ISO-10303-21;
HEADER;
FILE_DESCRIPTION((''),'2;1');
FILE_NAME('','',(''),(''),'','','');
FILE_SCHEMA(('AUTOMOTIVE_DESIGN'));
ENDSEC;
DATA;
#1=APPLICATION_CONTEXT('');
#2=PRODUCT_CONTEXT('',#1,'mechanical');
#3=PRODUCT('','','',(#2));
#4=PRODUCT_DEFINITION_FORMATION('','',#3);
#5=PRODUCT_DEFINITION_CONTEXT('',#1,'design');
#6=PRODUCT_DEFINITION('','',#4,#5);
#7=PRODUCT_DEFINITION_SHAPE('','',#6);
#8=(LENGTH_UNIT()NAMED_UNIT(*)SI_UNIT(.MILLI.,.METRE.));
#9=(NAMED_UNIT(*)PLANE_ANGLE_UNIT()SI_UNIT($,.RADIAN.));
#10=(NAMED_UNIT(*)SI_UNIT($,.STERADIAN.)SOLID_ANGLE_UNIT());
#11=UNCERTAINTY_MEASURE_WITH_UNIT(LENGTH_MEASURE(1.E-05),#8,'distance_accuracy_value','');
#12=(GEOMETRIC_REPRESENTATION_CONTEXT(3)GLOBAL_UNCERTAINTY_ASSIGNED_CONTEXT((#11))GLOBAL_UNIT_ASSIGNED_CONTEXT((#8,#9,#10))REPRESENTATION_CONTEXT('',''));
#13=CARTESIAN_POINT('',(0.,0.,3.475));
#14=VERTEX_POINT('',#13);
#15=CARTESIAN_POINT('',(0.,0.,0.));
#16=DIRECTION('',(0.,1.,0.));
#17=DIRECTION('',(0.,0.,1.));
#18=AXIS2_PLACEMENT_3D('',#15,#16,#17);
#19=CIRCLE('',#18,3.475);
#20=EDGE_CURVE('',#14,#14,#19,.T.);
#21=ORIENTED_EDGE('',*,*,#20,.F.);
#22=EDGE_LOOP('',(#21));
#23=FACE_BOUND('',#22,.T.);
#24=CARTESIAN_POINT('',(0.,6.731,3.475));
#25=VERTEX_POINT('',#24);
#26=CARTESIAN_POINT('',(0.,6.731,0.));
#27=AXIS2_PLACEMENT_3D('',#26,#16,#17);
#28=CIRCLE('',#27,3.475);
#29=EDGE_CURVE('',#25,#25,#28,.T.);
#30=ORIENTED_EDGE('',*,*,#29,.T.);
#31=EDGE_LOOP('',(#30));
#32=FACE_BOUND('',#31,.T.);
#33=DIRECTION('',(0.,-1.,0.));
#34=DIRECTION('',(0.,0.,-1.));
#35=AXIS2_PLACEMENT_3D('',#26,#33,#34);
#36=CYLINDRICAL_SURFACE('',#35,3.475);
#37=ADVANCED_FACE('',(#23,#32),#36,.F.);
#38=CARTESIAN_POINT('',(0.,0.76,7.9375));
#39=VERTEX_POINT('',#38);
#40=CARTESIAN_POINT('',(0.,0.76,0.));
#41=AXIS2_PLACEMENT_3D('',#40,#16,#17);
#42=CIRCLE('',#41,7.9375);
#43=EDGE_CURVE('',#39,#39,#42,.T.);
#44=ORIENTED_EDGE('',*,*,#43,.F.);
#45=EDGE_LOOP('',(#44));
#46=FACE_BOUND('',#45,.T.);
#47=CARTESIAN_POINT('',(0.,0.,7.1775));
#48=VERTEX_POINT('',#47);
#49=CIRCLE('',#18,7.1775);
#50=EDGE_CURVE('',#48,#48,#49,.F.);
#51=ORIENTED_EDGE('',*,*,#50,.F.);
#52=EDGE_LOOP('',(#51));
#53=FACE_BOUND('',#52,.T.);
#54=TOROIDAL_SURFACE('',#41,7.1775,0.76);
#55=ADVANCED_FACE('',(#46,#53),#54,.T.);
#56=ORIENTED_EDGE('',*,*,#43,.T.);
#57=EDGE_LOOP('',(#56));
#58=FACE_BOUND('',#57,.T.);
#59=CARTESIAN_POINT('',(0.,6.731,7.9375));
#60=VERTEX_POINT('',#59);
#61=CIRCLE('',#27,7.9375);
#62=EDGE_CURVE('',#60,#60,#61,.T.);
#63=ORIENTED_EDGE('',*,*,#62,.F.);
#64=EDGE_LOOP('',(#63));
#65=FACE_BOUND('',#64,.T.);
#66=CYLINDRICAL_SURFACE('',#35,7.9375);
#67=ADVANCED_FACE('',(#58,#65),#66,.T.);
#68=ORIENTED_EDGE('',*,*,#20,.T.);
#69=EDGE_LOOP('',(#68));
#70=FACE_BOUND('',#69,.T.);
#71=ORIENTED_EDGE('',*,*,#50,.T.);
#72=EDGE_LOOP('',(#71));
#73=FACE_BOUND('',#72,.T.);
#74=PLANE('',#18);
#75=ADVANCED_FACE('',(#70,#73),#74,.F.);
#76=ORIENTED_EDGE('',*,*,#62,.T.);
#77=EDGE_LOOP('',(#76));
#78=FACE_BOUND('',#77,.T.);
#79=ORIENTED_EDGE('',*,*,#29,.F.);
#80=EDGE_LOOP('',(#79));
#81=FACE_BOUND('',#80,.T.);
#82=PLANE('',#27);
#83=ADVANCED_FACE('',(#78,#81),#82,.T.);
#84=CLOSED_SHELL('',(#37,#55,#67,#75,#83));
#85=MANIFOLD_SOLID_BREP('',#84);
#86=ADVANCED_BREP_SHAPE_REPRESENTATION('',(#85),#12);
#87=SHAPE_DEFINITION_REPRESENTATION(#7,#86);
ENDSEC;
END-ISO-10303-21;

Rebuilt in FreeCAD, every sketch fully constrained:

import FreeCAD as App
import Part
import Sketcher
Q = App.Units.Quantity


def edges_at(feature, points):
    """Names of the edges that pass closest to the given points."""
    edges = feature.Shape.Edges
    near = lambda p: min(range(len(edges)), key=lambda i: edges[i].distToShape(Part.Vertex(*p))[0])
    return sorted({f"Edge{near(p) + 1}" for p in points})

doc = App.newDocument("Part")
body = doc.addObject("PartDesign::Body", "Body")

sketch1 = body.newObject("Sketcher::SketchObject", "Sketch")
sketch1.AttachmentSupport = (doc.getObject("XZ_Plane"), [""])
sketch1.MapMode = "FlatFace"
sketch1.addGeometry([
    Part.Circle(App.Vector(0, 0, 0), App.Vector(0, 0, 1), 7.9375),
    Part.Circle(App.Vector(0, 0, 0), App.Vector(0, 0, 1), 3.475),
], False)
sketch1.addConstraint([
    Sketcher.Constraint("Coincident", 0, 3, -1, 1),
    Sketcher.Constraint("Coincident", 1, 3, -1, 1),
    Sketcher.Constraint("Diameter", 0, Q("0.625 in")),
    Sketcher.Constraint("Diameter", 1, Q("6.95 mm")),
])
pad1 = body.newObject("PartDesign::Pad", "Pad")
pad1.Profile = sketch1
pad1.Length = Q("0.265 in")
pad1.Reversed = True
doc.recompute()

fillet = body.newObject("PartDesign::Fillet", "Fillet")
fillet.Base = (pad1, edges_at(pad1, [(-7.938, 0, 0)]))
fillet.Radius = 0.76

doc.recompute()
